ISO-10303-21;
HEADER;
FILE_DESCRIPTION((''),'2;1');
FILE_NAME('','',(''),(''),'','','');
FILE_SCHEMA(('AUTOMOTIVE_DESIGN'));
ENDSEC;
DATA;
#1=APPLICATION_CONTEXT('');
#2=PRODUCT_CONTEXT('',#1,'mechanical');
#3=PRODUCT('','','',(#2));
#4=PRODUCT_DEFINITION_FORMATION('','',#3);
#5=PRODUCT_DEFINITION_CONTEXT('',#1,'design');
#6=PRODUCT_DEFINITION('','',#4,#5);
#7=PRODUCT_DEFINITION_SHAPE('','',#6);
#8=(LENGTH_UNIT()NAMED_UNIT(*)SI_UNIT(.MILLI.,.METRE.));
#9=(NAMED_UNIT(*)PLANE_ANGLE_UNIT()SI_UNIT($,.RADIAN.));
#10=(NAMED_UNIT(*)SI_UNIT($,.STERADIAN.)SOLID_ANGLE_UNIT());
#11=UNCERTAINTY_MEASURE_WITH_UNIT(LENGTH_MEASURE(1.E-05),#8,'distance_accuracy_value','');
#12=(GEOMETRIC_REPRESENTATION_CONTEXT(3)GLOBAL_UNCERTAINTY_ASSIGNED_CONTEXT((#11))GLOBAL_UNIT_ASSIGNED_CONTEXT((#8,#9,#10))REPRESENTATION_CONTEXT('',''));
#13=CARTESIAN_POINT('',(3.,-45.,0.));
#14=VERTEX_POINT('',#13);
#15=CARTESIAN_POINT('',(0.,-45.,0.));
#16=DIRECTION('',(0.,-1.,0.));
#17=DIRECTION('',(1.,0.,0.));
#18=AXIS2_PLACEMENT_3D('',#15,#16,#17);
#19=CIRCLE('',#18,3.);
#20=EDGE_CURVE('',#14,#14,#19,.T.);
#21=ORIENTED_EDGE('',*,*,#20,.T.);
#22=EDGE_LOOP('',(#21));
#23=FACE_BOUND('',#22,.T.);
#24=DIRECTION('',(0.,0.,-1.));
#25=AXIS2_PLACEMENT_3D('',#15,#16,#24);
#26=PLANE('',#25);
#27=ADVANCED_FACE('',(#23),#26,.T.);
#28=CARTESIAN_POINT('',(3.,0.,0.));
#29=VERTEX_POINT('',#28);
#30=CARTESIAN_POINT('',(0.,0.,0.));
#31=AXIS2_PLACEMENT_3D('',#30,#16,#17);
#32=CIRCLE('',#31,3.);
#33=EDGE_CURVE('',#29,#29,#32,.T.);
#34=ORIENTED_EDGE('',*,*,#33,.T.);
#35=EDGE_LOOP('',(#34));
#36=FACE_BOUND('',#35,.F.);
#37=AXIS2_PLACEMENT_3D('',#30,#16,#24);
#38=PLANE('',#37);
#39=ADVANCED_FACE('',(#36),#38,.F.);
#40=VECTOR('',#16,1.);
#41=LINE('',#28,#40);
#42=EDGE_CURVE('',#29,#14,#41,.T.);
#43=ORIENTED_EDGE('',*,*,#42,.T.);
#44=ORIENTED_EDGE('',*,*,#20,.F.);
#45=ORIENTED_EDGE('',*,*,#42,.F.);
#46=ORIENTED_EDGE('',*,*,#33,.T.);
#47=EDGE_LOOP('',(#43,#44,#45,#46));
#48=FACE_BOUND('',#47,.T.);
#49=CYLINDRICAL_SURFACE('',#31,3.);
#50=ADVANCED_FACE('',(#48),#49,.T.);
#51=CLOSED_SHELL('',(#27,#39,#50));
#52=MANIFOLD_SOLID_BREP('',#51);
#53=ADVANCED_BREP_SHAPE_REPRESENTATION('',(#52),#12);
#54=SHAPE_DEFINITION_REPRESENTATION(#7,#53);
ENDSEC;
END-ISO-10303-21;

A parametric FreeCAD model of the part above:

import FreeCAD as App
import Part
import Sketcher

V = App.Vector
Q = App.Units.Quantity

doc = App.newDocument("Part")
params = doc.addObject("Spreadsheet::Sheet", "Params")
for row, (alias, value) in enumerate([
    ("sketch1_diameter", "6 mm"),
    ("sketch2_height", "45 mm"),
], start=1):
    params.set(f"A{row}", alias)
    params.set(f"B{row}", "=" + value)
    params.setAlias(f"B{row}", alias)

body = doc.addObject("PartDesign::Body", "Body")

# Sketch on XZ plane
sketch1 = body.newObject("Sketcher::SketchObject", "Sketch")
sketch1.AttachmentSupport = (doc.getObject("XZ_Plane"), [""])
sketch1.MapMode = "FlatFace"
sketch1.addGeometry(Part.Circle(V(0, 0, 0), V(0, 0, 1), 3), False)
sketch1.addConstraint(Sketcher.Constraint("Coincident", 0, 3, -1, 1))
sketch1.addConstraint(Sketcher.Constraint("Diameter", 0, Q("6 mm")))
sketch1.setExpression("Constraints[1]", "Params.sketch1_diameter")

# Sketch on XY plane
sketch2 = body.newObject("Sketcher::SketchObject", "Sketch001")
sketch2.AttachmentSupport = (doc.getObject("XY_Plane"), [""])
sketch2.MapMode = "FlatFace"
sketch2.addGeometry(Part.LineSegment(V(0, 0, 0), V(0, -45, 0)), False)
sketch2.addConstraint(Sketcher.Constraint("Vertical", 0))
sketch2.addConstraint(Sketcher.Constraint("Coincident", 0, 1, -1, 1))
sketch2.addConstraint(Sketcher.Constraint("DistanceY", 0, 2, 0, 1, Q("45 mm")))
sketch2.setExpression("Constraints[2]", "Params.sketch2_height")
doc.recompute()

additivepipe = body.newObject("PartDesign::AdditivePipe", "AdditivePipe")
additivepipe.Profile = sketch1
additivepipe.Spine = (sketch2, ["Edge1"])

doc.recompute()
